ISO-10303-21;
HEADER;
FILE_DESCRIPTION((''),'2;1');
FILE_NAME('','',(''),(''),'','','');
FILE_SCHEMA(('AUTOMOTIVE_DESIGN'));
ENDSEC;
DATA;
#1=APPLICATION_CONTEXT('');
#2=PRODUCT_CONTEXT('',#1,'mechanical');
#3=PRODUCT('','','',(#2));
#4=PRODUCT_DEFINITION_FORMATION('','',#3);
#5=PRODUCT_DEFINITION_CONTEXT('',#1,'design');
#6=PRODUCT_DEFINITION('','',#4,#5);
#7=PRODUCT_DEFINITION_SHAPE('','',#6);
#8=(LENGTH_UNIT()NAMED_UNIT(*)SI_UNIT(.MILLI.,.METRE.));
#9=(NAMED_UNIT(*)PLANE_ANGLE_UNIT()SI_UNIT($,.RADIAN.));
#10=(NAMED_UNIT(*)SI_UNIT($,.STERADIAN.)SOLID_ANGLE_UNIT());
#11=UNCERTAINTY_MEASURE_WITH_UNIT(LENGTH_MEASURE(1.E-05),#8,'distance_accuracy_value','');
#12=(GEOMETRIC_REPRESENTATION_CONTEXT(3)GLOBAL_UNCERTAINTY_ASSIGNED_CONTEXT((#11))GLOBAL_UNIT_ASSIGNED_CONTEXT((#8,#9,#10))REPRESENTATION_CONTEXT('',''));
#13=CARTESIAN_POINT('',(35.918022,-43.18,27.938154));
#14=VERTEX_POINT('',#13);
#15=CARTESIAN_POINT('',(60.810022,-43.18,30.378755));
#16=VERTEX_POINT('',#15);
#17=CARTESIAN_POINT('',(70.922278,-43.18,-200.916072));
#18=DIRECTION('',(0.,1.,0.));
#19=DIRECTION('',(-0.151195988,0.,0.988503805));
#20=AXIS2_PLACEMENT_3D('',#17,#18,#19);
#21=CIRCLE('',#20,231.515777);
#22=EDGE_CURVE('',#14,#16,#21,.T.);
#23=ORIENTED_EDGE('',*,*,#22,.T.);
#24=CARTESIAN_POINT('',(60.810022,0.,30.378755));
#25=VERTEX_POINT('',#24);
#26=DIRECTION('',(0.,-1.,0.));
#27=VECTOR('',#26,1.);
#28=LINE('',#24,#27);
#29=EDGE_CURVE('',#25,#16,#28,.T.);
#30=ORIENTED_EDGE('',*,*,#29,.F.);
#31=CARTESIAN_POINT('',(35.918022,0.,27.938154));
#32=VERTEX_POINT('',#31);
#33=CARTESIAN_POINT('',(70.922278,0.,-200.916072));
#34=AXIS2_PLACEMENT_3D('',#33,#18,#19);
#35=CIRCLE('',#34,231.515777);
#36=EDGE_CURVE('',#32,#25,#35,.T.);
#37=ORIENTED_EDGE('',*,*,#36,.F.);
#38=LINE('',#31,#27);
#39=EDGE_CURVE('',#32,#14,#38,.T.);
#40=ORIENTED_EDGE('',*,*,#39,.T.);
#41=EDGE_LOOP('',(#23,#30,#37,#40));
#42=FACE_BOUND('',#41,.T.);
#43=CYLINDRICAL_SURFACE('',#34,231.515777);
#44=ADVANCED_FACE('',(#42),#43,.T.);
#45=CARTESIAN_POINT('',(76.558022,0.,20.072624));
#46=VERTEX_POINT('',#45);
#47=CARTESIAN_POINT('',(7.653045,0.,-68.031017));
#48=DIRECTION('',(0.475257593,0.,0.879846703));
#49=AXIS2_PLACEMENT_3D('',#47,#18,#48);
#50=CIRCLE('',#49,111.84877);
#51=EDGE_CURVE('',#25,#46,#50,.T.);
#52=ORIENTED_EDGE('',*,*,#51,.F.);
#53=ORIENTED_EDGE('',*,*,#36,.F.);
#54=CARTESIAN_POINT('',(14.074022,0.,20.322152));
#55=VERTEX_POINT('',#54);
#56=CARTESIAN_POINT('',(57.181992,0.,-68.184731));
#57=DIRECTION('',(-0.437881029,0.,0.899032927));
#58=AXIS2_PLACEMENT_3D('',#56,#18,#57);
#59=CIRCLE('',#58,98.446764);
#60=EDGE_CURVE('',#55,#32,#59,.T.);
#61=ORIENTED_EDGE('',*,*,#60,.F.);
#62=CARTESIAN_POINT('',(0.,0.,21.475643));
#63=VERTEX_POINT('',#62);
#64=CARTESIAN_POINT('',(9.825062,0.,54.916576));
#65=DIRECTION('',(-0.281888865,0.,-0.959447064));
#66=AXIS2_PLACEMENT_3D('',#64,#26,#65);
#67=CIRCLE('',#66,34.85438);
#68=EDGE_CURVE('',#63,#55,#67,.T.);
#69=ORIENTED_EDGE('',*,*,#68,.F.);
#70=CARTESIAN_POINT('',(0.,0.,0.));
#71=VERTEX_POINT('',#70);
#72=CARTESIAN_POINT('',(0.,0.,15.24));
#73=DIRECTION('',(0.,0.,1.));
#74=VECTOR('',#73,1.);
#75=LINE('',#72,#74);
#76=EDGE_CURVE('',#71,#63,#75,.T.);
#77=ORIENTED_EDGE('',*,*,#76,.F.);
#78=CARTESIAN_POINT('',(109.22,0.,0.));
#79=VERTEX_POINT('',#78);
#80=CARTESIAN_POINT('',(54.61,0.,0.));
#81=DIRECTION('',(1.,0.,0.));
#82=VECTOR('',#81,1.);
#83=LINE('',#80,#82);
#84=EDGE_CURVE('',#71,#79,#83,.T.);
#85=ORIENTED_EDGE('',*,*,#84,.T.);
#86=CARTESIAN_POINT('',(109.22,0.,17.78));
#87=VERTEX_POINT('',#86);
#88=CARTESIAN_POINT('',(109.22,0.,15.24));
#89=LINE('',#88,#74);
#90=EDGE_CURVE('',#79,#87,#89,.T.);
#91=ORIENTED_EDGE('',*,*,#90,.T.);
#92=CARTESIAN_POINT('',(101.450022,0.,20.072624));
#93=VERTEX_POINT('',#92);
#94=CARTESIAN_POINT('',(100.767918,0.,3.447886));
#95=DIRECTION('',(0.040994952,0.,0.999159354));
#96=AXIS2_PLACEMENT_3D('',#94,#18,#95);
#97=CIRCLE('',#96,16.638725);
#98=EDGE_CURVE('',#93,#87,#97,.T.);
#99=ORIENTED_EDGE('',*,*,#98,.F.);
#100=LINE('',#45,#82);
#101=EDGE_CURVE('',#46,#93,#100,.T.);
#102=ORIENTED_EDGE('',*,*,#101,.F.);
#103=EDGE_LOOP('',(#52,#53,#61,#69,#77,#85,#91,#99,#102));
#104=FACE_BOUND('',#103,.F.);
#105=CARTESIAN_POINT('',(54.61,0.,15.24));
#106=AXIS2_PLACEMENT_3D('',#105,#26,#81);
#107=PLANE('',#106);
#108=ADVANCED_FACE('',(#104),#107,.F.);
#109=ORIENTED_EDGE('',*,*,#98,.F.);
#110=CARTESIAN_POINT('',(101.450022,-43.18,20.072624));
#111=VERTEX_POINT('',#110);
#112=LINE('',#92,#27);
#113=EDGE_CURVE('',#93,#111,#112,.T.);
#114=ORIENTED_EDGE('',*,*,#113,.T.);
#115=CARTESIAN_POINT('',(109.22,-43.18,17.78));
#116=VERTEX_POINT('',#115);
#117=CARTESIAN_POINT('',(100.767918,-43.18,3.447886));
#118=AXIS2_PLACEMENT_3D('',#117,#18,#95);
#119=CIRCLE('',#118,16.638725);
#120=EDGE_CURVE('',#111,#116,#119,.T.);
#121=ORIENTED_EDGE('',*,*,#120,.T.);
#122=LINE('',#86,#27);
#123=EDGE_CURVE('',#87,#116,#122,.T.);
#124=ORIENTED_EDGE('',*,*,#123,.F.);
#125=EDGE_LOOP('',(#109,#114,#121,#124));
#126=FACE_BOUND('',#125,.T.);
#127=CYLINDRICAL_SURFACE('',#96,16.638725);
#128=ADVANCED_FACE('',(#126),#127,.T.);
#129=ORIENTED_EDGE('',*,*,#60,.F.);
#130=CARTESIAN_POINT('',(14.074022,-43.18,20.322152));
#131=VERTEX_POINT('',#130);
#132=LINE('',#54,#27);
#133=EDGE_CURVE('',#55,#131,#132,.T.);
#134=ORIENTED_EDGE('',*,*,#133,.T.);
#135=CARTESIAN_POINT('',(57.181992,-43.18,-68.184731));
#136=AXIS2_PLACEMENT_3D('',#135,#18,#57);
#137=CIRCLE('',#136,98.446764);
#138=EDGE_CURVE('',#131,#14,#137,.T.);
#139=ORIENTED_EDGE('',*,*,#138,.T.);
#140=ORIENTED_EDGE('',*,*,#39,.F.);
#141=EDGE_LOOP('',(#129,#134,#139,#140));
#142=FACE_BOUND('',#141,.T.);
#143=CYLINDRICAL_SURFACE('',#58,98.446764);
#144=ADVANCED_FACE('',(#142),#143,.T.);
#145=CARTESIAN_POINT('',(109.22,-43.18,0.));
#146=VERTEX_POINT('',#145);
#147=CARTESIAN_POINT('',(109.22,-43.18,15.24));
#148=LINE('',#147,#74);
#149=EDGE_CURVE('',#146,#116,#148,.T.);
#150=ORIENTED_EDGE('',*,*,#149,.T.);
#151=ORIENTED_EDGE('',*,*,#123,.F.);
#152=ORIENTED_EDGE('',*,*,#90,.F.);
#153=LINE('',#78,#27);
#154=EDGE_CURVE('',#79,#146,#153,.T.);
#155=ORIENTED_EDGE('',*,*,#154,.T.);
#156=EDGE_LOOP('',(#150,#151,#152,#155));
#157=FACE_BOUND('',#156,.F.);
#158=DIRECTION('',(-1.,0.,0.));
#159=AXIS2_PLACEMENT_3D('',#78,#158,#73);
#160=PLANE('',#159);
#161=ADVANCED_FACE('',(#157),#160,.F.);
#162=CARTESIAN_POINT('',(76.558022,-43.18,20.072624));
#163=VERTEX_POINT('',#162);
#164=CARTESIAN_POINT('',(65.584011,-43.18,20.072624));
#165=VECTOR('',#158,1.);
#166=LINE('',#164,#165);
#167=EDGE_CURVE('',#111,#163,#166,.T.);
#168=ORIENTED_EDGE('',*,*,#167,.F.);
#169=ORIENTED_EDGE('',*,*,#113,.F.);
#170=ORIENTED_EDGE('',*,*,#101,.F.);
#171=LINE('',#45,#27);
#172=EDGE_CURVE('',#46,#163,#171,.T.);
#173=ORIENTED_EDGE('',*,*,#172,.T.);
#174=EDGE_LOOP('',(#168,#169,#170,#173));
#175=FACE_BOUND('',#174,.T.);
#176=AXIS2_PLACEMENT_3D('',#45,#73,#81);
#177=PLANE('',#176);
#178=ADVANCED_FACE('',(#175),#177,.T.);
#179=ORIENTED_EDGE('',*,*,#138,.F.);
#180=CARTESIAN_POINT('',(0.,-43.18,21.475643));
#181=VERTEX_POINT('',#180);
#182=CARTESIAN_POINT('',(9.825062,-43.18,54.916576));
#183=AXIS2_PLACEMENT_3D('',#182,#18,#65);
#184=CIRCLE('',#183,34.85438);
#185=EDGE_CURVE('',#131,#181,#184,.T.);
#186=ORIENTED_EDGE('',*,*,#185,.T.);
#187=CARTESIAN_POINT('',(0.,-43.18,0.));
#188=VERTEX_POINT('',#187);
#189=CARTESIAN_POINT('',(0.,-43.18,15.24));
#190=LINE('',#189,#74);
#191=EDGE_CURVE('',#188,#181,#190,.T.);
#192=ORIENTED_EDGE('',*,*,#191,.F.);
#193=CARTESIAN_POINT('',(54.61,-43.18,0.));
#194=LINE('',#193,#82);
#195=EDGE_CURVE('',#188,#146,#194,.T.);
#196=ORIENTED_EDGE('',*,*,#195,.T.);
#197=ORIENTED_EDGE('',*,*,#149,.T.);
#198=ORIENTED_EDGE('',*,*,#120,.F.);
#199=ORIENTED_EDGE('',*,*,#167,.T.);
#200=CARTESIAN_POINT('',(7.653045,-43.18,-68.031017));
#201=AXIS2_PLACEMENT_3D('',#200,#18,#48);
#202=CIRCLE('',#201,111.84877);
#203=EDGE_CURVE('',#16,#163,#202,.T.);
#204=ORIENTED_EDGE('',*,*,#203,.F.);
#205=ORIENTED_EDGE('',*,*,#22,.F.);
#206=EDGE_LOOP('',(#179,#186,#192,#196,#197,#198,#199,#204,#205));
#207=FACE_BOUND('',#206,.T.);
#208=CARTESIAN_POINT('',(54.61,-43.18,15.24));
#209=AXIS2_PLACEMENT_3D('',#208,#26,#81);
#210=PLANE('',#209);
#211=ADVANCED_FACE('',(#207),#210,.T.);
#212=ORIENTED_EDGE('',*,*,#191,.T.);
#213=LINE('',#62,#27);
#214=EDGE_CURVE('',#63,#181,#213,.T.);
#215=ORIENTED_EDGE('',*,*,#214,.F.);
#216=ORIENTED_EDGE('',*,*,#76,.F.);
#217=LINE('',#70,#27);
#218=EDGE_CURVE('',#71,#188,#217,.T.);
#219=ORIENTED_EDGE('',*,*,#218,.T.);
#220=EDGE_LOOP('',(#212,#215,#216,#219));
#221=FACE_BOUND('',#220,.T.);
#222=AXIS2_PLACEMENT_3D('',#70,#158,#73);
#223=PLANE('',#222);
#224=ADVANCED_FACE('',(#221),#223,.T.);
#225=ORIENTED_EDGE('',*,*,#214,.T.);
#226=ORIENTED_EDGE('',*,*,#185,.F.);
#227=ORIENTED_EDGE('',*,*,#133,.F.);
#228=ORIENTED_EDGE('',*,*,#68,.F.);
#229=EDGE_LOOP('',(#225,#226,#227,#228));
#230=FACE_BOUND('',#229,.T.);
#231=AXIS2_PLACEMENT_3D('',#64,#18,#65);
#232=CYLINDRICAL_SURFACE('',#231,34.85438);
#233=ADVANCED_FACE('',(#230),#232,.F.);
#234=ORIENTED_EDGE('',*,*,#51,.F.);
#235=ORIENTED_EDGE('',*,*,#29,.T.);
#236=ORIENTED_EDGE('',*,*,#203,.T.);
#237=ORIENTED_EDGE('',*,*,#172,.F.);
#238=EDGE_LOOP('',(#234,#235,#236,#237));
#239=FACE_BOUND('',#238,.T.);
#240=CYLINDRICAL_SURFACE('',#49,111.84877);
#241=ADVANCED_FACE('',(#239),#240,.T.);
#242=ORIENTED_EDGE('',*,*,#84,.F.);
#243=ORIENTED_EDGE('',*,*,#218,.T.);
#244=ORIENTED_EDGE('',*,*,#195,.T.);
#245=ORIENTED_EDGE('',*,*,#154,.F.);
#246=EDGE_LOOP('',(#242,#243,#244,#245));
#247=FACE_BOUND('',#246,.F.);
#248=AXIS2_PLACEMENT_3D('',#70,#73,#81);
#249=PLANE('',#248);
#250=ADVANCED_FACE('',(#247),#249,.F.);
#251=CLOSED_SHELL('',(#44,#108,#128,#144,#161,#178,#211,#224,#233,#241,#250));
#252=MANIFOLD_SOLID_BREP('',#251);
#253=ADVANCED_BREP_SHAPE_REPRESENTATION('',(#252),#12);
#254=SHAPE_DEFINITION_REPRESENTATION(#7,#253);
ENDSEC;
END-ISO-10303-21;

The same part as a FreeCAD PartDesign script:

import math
import FreeCAD as App
import Part
import Sketcher

V = App.Vector
Q = App.Units.Quantity

doc = App.newDocument("Part")
body = doc.addObject("PartDesign::Body", "Body")

# Sketch on XZ plane
sketch1 = body.newObject("Sketcher::SketchObject", "Sketch")
sketch1.AttachmentSupport = (doc.getObject("XZ_Plane"), [""])
sketch1.MapMode = "FlatFace"
sketch1.addGeometry([
    Part.LineSegment(V(0, 30, 0), V(0, 0, 0)),
    Part.LineSegment(V(0, 0, 0), V(109, 0, 0)),
    Part.LineSegment(V(109, 0, 0), V(109, 30, 0)),
    Part.LineSegment(V(109, 30, 0), V(0, 30, 0)),
], False)
sketch1.addConstraint([
    Sketcher.Constraint("Coincident", 0, 2, 1, 1),
    Sketcher.Constraint("Coincident", 1, 2, 2, 1),
    Sketcher.Constraint("Coincident", 2, 2, 3, 1),
    Sketcher.Constraint("Coincident", 3, 2, 0, 1),
    Sketcher.Constraint("Vertical", 0),
    Sketcher.Constraint("Horizontal", 1),
    Sketcher.Constraint("Vertical", 2),
    Sketcher.Constraint("Horizontal", 3),
    Sketcher.Constraint("Coincident", 0, 2, -1, 1),
    Sketcher.Constraint("DistanceX", 1, 1, 1, 2, Q("4.3 in")),
    Sketcher.Constraint("DistanceY", 0, 2, 0, 1, Q("1.2 in")),
])
pad1 = body.newObject("PartDesign::Pad", "Pad")
pad1.Profile = sketch1
pad1.Length = Q("1.7 in")

# Sketch on XZ plane
sketch2 = body.newObject("Sketcher::SketchObject", "Sketch001")
sketch2.AttachmentSupport = (doc.getObject("XZ_Plane"), [""])
sketch2.MapMode = "FlatFace"
sketch2.addGeometry([
    Part.ArcOfCircle(Part.Circle(V(101, 3, 0), V(0, 0, 1), 17), math.radians(59), math.radians(88)),  # 0
    Part.LineSegment(V(109, 18, 0), V(109, 33, 0)),  # 1
    Part.LineSegment(V(109, 33, 0), V(0, 33, 0)),  # 2
    Part.LineSegment(V(0, 33, 0), V(0, 21, 0)),  # 3
    Part.ArcOfCircle(Part.Circle(V(10, 55, 0), V(0, 0, 1), 35), math.radians(-106), math.radians(-83)),  # 4
    Part.ArcOfCircle(Part.Circle(V(57, -68, 0), V(0, 0, 1), 98), math.radians(102.47), math.radians(115.97)),  # 5
    Part.ArcOfCircle(Part.Circle(V(71, -201, 0), V(0, 0, 1), 232), math.radians(92.5), math.radians(98.7)),  # 6
    Part.ArcOfCircle(Part.Circle(V(8, -68, 0), V(0, 0, 1), 112), math.radians(51.97), math.radians(61.62)),  # 7
    Part.LineSegment(V(77, 20, 0), V(101, 20, 0)),  # 8
], False)
sketch2.addConstraint([
    Sketcher.Constraint("Coincident", 0, 1, 1, 1),
    Sketcher.Constraint("Coincident", 1, 2, 2, 1),
    Sketcher.Constraint("Coincident", 2, 2, 3, 1),
    Sketcher.Constraint("Coincident", 3, 2, 4, 1),
    Sketcher.Constraint("Coincident", 4, 2, 5, 2),
    Sketcher.Constraint("Coincident", 5, 1, 6, 2),
    Sketcher.Constraint("Coincident", 6, 1, 7, 2),
    Sketcher.Constraint("Coincident", 7, 1, 8, 1),
    Sketcher.Constraint("Coincident", 8, 2, 0, 2),
    Sketcher.Constraint("Vertical", 1),
    Sketcher.Constraint("Horizontal", 2),
    Sketcher.Constraint("Vertical", 3),
    Sketcher.Constraint("Horizontal", 8),
    Sketcher.Constraint("PointOnObject", 2, 2, -2),
    Sketcher.Constraint("DistanceX", 2, 2, 2, 1, Q("4.3 in")),
    Sketcher.Constraint("DistanceX", 8, 1, 8, 2, Q("0.98 in")),
    Sketcher.Constraint("DistanceY", -1, 1, 0, 1, Q("0.7 in")),
    Sketcher.Constraint("DistanceX", 5, 1, 7, 1, Q("1.6 in")),
    Sketcher.Constraint("DistanceX", 6, 1, 8, 2, Q("1.6 in")),
    Sketcher.Constraint("DistanceX", 4, 2, 5, 1, Q("0.86 in")),
    Sketcher.Constraint("Radius", 4, Q("34.85438 mm")),
    Sketcher.Constraint("Radius", 7, Q("111.84877 mm")),
    Sketcher.Constraint("Radius", 0, Q("16.638725 mm")),
    Sketcher.Constraint("Radius", 5, Q("98.446764 mm")),
    Sketcher.Constraint("Radius", 6, Q("231.515777 mm")),
    Sketcher.Constraint("DistanceY", 5, 1, 6, 1, Q("2.440601 mm")),
    Sketcher.Constraint("DistanceY", 7, 1, 1, 2, Q("12.568602 mm")),
    Sketcher.Constraint("DistanceY", 1, 1, 1, 2, Q("14.861226 mm")),
    Sketcher.Constraint("DistanceY", 3, 2, 3, 1, Q("11.165583 mm")),
    Sketcher.Constraint("DistanceX", -1, 1, 0, 3, Q("100.767918 mm")),
    Sketcher.Constraint("DistanceX", -1, 1, 4, 3, Q("9.825062 mm")),
    Sketcher.Constraint("DistanceY", 5, 3, -1, 1, Q("68.184731 mm")),
])
pocket1 = body.newObject("PartDesign::Pocket", "Pocket")
pocket1.Profile = sketch2
pocket1.Type = "ThroughAll"
pocket1.Reversed = True

doc.recompute()
